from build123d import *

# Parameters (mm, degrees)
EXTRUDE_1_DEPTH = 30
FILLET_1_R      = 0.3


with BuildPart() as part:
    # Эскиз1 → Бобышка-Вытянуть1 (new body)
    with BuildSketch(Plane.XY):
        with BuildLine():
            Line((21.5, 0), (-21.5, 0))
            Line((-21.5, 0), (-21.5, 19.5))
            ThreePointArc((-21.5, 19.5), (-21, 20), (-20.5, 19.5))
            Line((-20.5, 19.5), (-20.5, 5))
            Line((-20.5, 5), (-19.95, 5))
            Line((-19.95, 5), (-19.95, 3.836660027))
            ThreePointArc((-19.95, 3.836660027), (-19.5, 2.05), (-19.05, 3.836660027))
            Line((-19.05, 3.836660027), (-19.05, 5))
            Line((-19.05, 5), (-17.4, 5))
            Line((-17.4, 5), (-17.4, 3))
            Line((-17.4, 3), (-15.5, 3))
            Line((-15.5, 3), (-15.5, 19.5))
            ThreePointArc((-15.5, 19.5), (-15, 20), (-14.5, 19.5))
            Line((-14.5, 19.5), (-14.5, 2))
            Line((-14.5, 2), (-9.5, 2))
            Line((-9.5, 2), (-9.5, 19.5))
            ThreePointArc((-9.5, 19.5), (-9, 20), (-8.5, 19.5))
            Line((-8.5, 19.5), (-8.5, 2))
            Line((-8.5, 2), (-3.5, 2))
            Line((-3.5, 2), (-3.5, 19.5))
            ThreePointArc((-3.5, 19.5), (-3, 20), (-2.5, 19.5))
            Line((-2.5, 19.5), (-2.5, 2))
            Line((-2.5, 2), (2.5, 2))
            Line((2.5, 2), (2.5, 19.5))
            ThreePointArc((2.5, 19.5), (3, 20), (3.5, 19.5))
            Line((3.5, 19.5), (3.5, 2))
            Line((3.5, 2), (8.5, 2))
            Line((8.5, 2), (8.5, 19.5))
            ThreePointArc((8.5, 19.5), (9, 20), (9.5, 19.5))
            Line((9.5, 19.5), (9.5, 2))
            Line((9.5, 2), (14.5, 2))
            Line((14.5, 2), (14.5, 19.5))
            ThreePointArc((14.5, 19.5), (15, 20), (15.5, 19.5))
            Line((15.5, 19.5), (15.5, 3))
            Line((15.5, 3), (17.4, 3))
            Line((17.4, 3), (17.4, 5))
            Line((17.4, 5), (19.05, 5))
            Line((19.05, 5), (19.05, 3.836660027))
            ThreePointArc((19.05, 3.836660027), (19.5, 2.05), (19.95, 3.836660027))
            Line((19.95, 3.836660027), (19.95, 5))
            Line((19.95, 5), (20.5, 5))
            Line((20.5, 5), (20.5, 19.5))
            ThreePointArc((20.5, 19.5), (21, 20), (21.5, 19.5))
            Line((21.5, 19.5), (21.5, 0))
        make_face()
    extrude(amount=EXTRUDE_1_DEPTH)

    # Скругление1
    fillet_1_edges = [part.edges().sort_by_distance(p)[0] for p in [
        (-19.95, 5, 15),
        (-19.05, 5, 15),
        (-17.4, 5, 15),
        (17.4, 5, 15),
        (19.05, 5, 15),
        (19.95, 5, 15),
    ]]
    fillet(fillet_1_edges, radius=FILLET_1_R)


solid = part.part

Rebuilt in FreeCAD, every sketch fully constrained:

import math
import FreeCAD as App
import Part
import Sketcher
from FreeCAD import Vector
Q = App.Units.Quantity


def edges_at(feature, points):
    """Names of the edges that pass closest to the given points."""
    edges = feature.Shape.Edges
    near = lambda p: min(range(len(edges)), key=lambda i: edges[i].distToShape(Part.Vertex(*p))[0])
    return sorted({f"Edge{near(p) + 1}" for p in points})

doc = App.newDocument("Part")
body = doc.addObject("PartDesign::Body", "Body")

# Sketch on XY plane
sketch1 = doc.addObject("Sketcher::SketchObject", "Sketch")
body.addObject(sketch1)
sketch1.AttachmentSupport = (doc.XY_Plane, [""])
sketch1.MapMode = "FlatFace"
sketch1.addGeometry(Part.LineSegment(Vector(-21.5, 0, 0), Vector(21.5, 0, 0)), False)
sketch1.addGeometry(Part.LineSegment(Vector(21.5, 0, 0), Vector(21.5, 19.5, 0)), False)
sketch1.addGeometry(Part.ArcOfCircle(Part.Circle(Vector(21, 19.5, 0), Vector(0, 0, 1), 0.5), math.radians(0), math.radians(180)), False)
sketch1.addGeometry(Part.LineSegment(Vector(20.5, 19.5, 0), Vector(20.5, 5, 0)), False)
sketch1.addGeometry(Part.LineSegment(Vector(20.5, 5, 0), Vector(19.9, 5, 0)), False)
sketch1.addGeometry(Part.LineSegment(Vector(19.9, 5, 0), Vector(19.9, 3.8, 0)), False)
sketch1.addGeometry(Part.ArcOfCircle(Part.Circle(Vector(19.5, 3, 0), Vector(0, 0, 1), 0.9), math.radians(118), math.radians(422)), False)
sketch1.addGeometry(Part.LineSegment(Vector(19.1, 3.8, 0), Vector(19.1, 5, 0)), False)
sketch1.addGeometry(Part.LineSegment(Vector(19.1, 5, 0), Vector(17.4, 5, 0)), False)
sketch1.addGeometry(Part.LineSegment(Vector(17.4, 5, 0), Vector(17.4, 3, 0)), False)
sketch1.addGeometry(Part.LineSegment(Vector(17.4, 3, 0), Vector(15.5, 3, 0)), False)
sketch1.addGeometry(Part.LineSegment(Vector(15.5, 3, 0), Vector(15.5, 19.5, 0)), False)
sketch1.addGeometry(Part.ArcOfCircle(Part.Circle(Vector(15, 19.5, 0), Vector(0, 0, 1), 0.5), math.radians(0), math.radians(180)), False)
sketch1.addGeometry(Part.LineSegment(Vector(14.5, 19.5, 0), Vector(14.5, 2, 0)), False)
sketch1.addGeometry(Part.LineSegment(Vector(14.5, 2, 0), Vector(9.5, 2, 0)), False)
sketch1.addGeometry(Part.LineSegment(Vector(9.5, 2, 0), Vector(9.5, 19.5, 0)), False)
sketch1.addGeometry(Part.ArcOfCircle(Part.Circle(Vector(9, 19.5, 0), Vector(0, 0, 1), 0.5), math.radians(0), math.radians(180)), False)
sketch1.addGeometry(Part.LineSegment(Vector(8.5, 19.5, 0), Vector(8.5, 2, 0)), False)
sketch1.addGeometry(Part.LineSegment(Vector(8.5, 2, 0), Vector(3.5, 2, 0)), False)
sketch1.addGeometry(Part.LineSegment(Vector(3.5, 2, 0), Vector(3.5, 19.5, 0)), False)
sketch1.addGeometry(Part.ArcOfCircle(Part.Circle(Vector(3, 19.5, 0), Vector(0, 0, 1), 0.5), math.radians(0), math.radians(180)), False)
sketch1.addGeometry(Part.LineSegment(Vector(2.5, 19.5, 0), Vector(2.5, 2, 0)), False)
sketch1.addGeometry(Part.LineSegment(Vector(2.5, 2, 0), Vector(-2.5, 2, 0)), False)
sketch1.addGeometry(Part.LineSegment(Vector(-2.5, 2, 0), Vector(-2.5, 19.5, 0)), False)
sketch1.addGeometry(Part.ArcOfCircle(Part.Circle(Vector(-3, 19.5, 0), Vector(0, 0, 1), 0.5), math.radians(0), math.radians(180)), False)
sketch1.addGeometry(Part.LineSegment(Vector(-3.5, 19.5, 0), Vector(-3.5, 2, 0)), False)
sketch1.addGeometry(Part.LineSegment(Vector(-3.5, 2, 0), Vector(-8.5, 2, 0)), False)
sketch1.addGeometry(Part.LineSegment(Vector(-8.5, 2, 0), Vector(-8.5, 19.5, 0)), False)
sketch1.addGeometry(Part.ArcOfCircle(Part.Circle(Vector(-9, 19.5, 0), Vector(0, 0, 1), 0.5), math.radians(0), math.radians(180)), False)
sketch1.addGeometry(Part.LineSegment(Vector(-9.5, 19.5, 0), Vector(-9.5, 2, 0)), False)
sketch1.addGeometry(Part.LineSegment(Vector(-9.5, 2, 0), Vector(-14.5, 2, 0)), False)
sketch1.addGeometry(Part.LineSegment(Vector(-14.5, 2, 0), Vector(-14.5, 19.5, 0)), False)
sketch1.addGeometry(Part.ArcOfCircle(Part.Circle(Vector(-15, 19.5, 0), Vector(0, 0, 1), 0.5), math.radians(0), math.radians(180)), False)
sketch1.addGeometry(Part.LineSegment(Vector(-15.5, 19.5, 0), Vector(-15.5, 3, 0)), False)
sketch1.addGeometry(Part.LineSegment(Vector(-15.5, 3, 0), Vector(-17.4, 3, 0)), False)
sketch1.addGeometry(Part.LineSegment(Vector(-17.4, 3, 0), Vector(-17.4, 5, 0)), False)
sketch1.addGeometry(Part.LineSegment(Vector(-17.4, 5, 0), Vector(-19.1, 5, 0)), False)
sketch1.addGeometry(Part.LineSegment(Vector(-19.1, 5, 0), Vector(-19.1, 3.8, 0)), False)
sketch1.addGeometry(Part.ArcOfCircle(Part.Circle(Vector(-19.5, 3, 0), Vector(0, 0, 1), 0.9), math.radians(118), math.radians(422)), False)
sketch1.addGeometry(Part.LineSegment(Vector(-19.9, 3.8, 0), Vector(-19.9, 5, 0)), False)
sketch1.addGeometry(Part.LineSegment(Vector(-19.9, 5, 0), Vector(-20.5, 5, 0)), False)
sketch1.addGeometry(Part.LineSegment(Vector(-20.5, 5, 0), Vector(-20.5, 19.5, 0)), False)
sketch1.addGeometry(Part.ArcOfCircle(Part.Circle(Vector(-21, 19.5, 0), Vector(0, 0, 1), 0.5), math.radians(0), math.radians(180)), False)
sketch1.addGeometry(Part.LineSegment(Vector(-21.5, 19.5, 0), Vector(-21.5, 0, 0)), False)
sketch1.addConstraint(Sketcher.Constraint("Coincident", 0, 2, 1, 1))
sketch1.addConstraint(Sketcher.Constraint("Tangent", 1, 2, 2, 1))
sketch1.addConstraint(Sketcher.Constraint("Tangent", 2, 2, 3, 1))
sketch1.addConstraint(Sketcher.Constraint("Coincident", 3, 2, 4, 1))
sketch1.addConstraint(Sketcher.Constraint("Coincident", 4, 2, 5, 1))
sketch1.addConstraint(Sketcher.Constraint("Coincident", 5, 2, 6, 2))
sketch1.addConstraint(Sketcher.Constraint("Coincident", 6, 1, 7, 1))
sketch1.addConstraint(Sketcher.Constraint("Coincident", 7, 2, 8, 1))
sketch1.addConstraint(Sketcher.Constraint("Coincident", 8, 2, 9, 1))
sketch1.addConstraint(Sketcher.Constraint("Coincident", 9, 2, 10, 1))
sketch1.addConstraint(Sketcher.Constraint("Coincident", 10, 2, 11, 1))
sketch1.addConstraint(Sketcher.Constraint("Tangent", 11, 2, 12, 1))
sketch1.addConstraint(Sketcher.Constraint("Tangent", 12, 2, 13, 1))
sketch1.addConstraint(Sketcher.Constraint("Coincident", 13, 2, 14, 1))
sketch1.addConstraint(Sketcher.Constraint("Coincident", 14, 2, 15, 1))
sketch1.addConstraint(Sketcher.Constraint("Tangent", 15, 2, 16, 1))
sketch1.addConstraint(Sketcher.Constraint("Tangent", 16, 2, 17, 1))
sketch1.addConstraint(Sketcher.Constraint("Coincident", 17, 2, 18, 1))
sketch1.addConstraint(Sketcher.Constraint("Coincident", 18, 2, 19, 1))
sketch1.addConstraint(Sketcher.Constraint("Tangent", 19, 2, 20, 1))
sketch1.addConstraint(Sketcher.Constraint("Tangent", 20, 2, 21, 1))
sketch1.addConstraint(Sketcher.Constraint("Coincident", 21, 2, 22, 1))
sketch1.addConstraint(Sketcher.Constraint("Coincident", 22, 2, 23, 1))
sketch1.addConstraint(Sketcher.Constraint("Tangent", 23, 2, 24, 1))
sketch1.addConstraint(Sketcher.Constraint("Tangent", 24, 2, 25, 1))
sketch1.addConstraint(Sketcher.Constraint("Coincident", 25, 2, 26, 1))
sketch1.addConstraint(Sketcher.Constraint("Coincident", 26, 2, 27, 1))
sketch1.addConstraint(Sketcher.Constraint("Tangent", 27, 2, 28, 1))
sketch1.addConstraint(Sketcher.Constraint("Tangent", 28, 2, 29, 1))
sketch1.addConstraint(Sketcher.Constraint("Coincident", 29, 2, 30, 1))
sketch1.addConstraint(Sketcher.Constraint("Coincident", 30, 2, 31, 1))
sketch1.addConstraint(Sketcher.Constraint("Tangent", 31, 2, 32, 1))
sketch1.addConstraint(Sketcher.Constraint("Tangent", 32, 2, 33, 1))
sketch1.addConstraint(Sketcher.Constraint("Coincident", 33, 2, 34, 1))
sketch1.addConstraint(Sketcher.Constraint("Coincident", 34, 2, 35, 1))
sketch1.addConstraint(Sketcher.Constraint("Coincident", 35, 2, 36, 1))
sketch1.addConstraint(Sketcher.Constraint("Coincident", 36, 2, 37, 1))
sketch1.addConstraint(Sketcher.Constraint("Coincident", 37, 2, 38, 2))
sketch1.addConstraint(Sketcher.Constraint("Coincident", 38, 1, 39, 1))
sketch1.addConstraint(Sketcher.Constraint("Coincident", 39, 2, 40, 1))
sketch1.addConstraint(Sketcher.Constraint("Coincident", 40, 2, 41, 1))
sketch1.addConstraint(Sketcher.Constraint("Tangent", 41, 2, 42, 1))
sketch1.addConstraint(Sketcher.Constraint("Tangent", 42, 2, 43, 1))
sketch1.addConstraint(Sketcher.Constraint("Coincident", 43, 2, 0, 1))
sketch1.addConstraint(Sketcher.Constraint("Horizontal", 0))
sketch1.addConstraint(Sketcher.Constraint("Vertical", 1))
sketch1.addConstraint(Sketcher.Constraint("Vertical", 3))
sketch1.addConstraint(Sketcher.Constraint("Horizontal", 4))
sketch1.addConstraint(Sketcher.Constraint("Vertical", 5))
sketch1.addConstraint(Sketcher.Constraint("Vertical", 7))
sketch1.addConstraint(Sketcher.Constraint("Horizontal", 8))
sketch1.addConstraint(Sketcher.Constraint("Vertical", 9))
sketch1.addConstraint(Sketcher.Constraint("Horizontal", 10))
sketch1.addConstraint(Sketcher.Constraint("Vertical", 11))
sketch1.addConstraint(Sketcher.Constraint("Vertical", 13))
sketch1.addConstraint(Sketcher.Constraint("Horizontal", 14))
sketch1.addConstraint(Sketcher.Constraint("Vertical", 15))
sketch1.addConstraint(Sketcher.Constraint("Vertical", 17))
sketch1.addConstraint(Sketcher.Constraint("Horizontal", 18))
sketch1.addConstraint(Sketcher.Constraint("Vertical", 19))
sketch1.addConstraint(Sketcher.Constraint("Vertical", 21))
sketch1.addConstraint(Sketcher.Constraint("Horizontal", 22))
sketch1.addConstraint(Sketcher.Constraint("Vertical", 23))
sketch1.addConstraint(Sketcher.Constraint("Vertical", 25))
sketch1.addConstraint(Sketcher.Constraint("Horizontal", 26))
sketch1.addConstraint(Sketcher.Constraint("Vertical", 27))
sketch1.addConstraint(Sketcher.Constraint("Vertical", 29))
sketch1.addConstraint(Sketcher.Constraint("Horizontal", 30))
sketch1.addConstraint(Sketcher.Constraint("Vertical", 31))
sketch1.addConstraint(Sketcher.Constraint("Vertical", 33))
sketch1.addConstraint(Sketcher.Constraint("Horizontal", 34))
sketch1.addConstraint(Sketcher.Constraint("Vertical", 35))
sketch1.addConstraint(Sketcher.Constraint("Horizontal", 36))
sketch1.addConstraint(Sketcher.Constraint("Vertical", 37))
sketch1.addConstraint(Sketcher.Constraint("Vertical", 39))
sketch1.addConstraint(Sketcher.Constraint("Horizontal", 40))
sketch1.addConstraint(Sketcher.Constraint("Vertical", 41))
sketch1.addConstraint(Sketcher.Constraint("Vertical", 43))
sketch1.addConstraint(Sketcher.Constraint("Equal", 2, 12))
sketch1.addConstraint(Sketcher.Constraint("Equal", 12, 16))
sketch1.addConstraint(Sketcher.Constraint("Equal", 16, 20))
sketch1.addConstraint(Sketcher.Constraint("Equal", 20, 24))
sketch1.addConstraint(Sketcher.Constraint("Equal", 24, 28))
sketch1.addConstraint(Sketcher.Constraint("Equal", 28, 32))
sketch1.addConstraint(Sketcher.Constraint("Equal", 6, 38))
sketch1.addConstraint(Sketcher.Constraint("Equal", 32, 42))
sketch1.addConstraint(Sketcher.Constraint("Symmetric", 0, 2, 43, 2, -1, 1))
sketch1.addConstraint(Sketcher.Constraint("Symmetric", 20, 3, 24, 3, -2))
sketch1.addConstraint(Sketcher.Constraint("Symmetric", 16, 3, 28, 3, -2))
sketch1.addConstraint(Sketcher.Constraint("Symmetric", 12, 3, 32, 3, -2))
sketch1.addConstraint(Sketcher.Constraint("Symmetric", 6, 3, 38, 3, -2))
sketch1.addConstraint(Sketcher.Constraint("Symmetric", 9, 2, 34, 2, -2))
sketch1.addConstraint(Sketcher.Constraint("Symmetric", 7, 2, 36, 2, -2))
sketch1.addConstraint(Sketcher.Constraint("Symmetric", 4, 2, 39, 2, -2))
sketch1.addConstraint(Sketcher.Constraint("Horizontal", 2, 3, 12, 3))
sketch1.addConstraint(Sketcher.Constraint("Horizontal", 12, 3, 16, 3))
sketch1.addConstraint(Sketcher.Constraint("Horizontal", 16, 3, 20, 3))
sketch1.addConstraint(Sketcher.Constraint("Horizontal", 32, 3, 42, 3))
sketch1.addConstraint(Sketcher.Constraint("Horizontal", 5, 2, 6, 1))
sketch1.addConstraint(Sketcher.Constraint("Horizontal", 4, 2, 7, 2))
sketch1.addConstraint(Sketcher.Constraint("Horizontal", 38, 3, 9, 2))
sketch1.addConstraint(Sketcher.Constraint("Horizontal", 14, 2, 17, 2))
sketch1.addConstraint(Sketcher.Constraint("Horizontal", 18, 2, 21, 2))
sketch1.addConstraint(Sketcher.Constraint("Horizontal", 22, 2, 25, 2))
sketch1.addConstraint(Sketcher.Constraint("Horizontal", 26, 2, 29, 2))
sketch1.addConstraint(Sketcher.Constraint("Equal", 14, 18))
sketch1.addConstraint(Sketcher.Constraint("Equal", 18, 22))
sketch1.addConstraint(Sketcher.Constraint("Radius", 2, Q("0.5 mm")))
sketch1.addConstraint(Sketcher.Constraint("DistanceX", 0, 1, 0, 2, Q("43 mm")))
sketch1.addConstraint(Sketcher.Constraint("DistanceX", 14, 2, 14, 1, Q("5 mm")))
sketch1.addConstraint(Sketcher.Constraint("DistanceY", 9, 2, 9, 1, Q("2 mm")))
sketch1.addConstraint(Sketcher.Constraint("Radius", 6, Q("0.95 mm")))
sketch1.addConstraint(Sketcher.Constraint("DistanceX", 10, 2, 10, 1, Q("1.9 mm")))
sketch1.addConstraint(Sketcher.Constraint("DistanceY", 1, 1, 1, 2, Q("19.5 mm")))
sketch1.addConstraint(Sketcher.Constraint("DistanceY", 3, 2, 3, 1, Q("14.5 mm")))
sketch1.addConstraint(Sketcher.Constraint("DistanceY", 13, 2, 13, 1, Q("17.5 mm")))
sketch1.addConstraint(Sketcher.Constraint("DistanceX", 6, 3, 0, 2, Q("2 mm")))
sketch1.addConstraint(Sketcher.Constraint("DistanceX", 4, 2, 4, 1, Q("0.55 mm")))
pad1 = doc.addObject("PartDesign::Pad", "Pad")
body.addObject(pad1)
pad1.Profile = sketch1
pad1.Length = 30
doc.recompute()

fillet = doc.addObject("PartDesign::Fillet", "Fillet")
body.addObject(fillet)
fillet.Base = (pad1, edges_at(pad1, [
    (-19.95, 5, 15),
    (-19.05, 5, 15),
    (-17.4, 5, 15),
    (17.4, 5, 15),
    (19.05, 5, 15),
    (19.95, 5, 15),
]))
fillet.Radius = 0.3

doc.recompute()
